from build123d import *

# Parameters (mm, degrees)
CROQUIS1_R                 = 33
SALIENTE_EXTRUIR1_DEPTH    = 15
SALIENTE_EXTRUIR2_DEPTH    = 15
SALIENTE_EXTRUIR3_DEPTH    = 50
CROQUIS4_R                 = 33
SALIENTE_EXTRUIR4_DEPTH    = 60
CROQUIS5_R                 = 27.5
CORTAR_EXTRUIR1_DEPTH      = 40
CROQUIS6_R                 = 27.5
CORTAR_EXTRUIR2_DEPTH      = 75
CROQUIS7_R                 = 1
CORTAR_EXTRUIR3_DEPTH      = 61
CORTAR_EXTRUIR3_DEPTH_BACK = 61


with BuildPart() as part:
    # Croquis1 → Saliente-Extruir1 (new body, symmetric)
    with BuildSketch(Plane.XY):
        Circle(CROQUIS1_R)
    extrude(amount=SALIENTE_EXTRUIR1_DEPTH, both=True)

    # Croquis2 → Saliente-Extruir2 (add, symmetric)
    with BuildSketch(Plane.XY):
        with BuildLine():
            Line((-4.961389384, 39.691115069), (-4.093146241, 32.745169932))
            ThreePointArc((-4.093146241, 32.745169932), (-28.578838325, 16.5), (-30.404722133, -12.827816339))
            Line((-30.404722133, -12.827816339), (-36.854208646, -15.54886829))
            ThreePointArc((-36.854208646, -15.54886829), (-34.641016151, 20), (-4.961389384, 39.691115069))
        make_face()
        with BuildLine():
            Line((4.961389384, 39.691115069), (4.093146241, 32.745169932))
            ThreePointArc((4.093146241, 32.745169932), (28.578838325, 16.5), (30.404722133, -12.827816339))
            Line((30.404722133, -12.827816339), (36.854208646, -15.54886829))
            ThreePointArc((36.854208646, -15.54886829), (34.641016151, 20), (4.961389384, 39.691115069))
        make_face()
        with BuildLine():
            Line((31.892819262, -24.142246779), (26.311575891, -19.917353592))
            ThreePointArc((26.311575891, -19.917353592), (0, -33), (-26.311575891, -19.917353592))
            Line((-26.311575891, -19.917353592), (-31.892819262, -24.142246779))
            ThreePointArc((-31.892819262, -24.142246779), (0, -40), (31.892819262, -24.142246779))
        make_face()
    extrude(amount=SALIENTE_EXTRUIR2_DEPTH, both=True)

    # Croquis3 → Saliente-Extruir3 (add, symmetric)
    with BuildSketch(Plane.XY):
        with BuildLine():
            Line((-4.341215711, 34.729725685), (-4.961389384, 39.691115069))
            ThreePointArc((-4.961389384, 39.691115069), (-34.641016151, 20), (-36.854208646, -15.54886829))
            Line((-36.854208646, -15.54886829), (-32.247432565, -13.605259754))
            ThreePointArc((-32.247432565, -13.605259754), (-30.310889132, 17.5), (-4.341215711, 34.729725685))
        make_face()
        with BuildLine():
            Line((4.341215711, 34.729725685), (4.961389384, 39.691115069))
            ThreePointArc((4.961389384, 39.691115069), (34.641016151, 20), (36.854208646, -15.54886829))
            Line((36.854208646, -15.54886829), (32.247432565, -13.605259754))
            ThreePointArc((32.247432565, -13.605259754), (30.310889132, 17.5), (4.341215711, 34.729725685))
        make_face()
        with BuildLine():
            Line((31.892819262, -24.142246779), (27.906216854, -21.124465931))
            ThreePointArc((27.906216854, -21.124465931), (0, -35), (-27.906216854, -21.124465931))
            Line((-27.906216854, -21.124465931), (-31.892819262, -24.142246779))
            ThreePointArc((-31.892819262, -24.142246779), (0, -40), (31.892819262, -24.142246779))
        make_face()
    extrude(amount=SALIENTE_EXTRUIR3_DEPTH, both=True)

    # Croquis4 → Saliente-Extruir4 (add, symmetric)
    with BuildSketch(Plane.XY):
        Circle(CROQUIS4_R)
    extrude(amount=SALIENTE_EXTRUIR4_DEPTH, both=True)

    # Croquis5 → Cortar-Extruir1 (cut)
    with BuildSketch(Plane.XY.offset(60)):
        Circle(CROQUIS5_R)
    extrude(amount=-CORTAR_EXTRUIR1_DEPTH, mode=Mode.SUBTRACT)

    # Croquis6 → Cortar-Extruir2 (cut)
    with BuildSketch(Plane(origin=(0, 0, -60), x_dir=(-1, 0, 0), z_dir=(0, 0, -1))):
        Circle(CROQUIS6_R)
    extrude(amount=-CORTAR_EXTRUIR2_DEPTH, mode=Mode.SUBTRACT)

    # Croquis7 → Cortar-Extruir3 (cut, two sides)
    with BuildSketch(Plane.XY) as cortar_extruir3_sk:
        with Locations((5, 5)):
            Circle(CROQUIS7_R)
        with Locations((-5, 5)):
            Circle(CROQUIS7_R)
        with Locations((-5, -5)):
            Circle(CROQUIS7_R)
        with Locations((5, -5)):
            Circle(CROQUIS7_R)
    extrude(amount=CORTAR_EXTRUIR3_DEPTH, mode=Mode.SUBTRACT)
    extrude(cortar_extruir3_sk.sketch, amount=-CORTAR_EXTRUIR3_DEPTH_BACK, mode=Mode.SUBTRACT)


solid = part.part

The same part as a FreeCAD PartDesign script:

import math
import FreeCAD as App
import Part
import Sketcher
from FreeCAD import Vector

doc = App.newDocument("Part")
params = doc.addObject("Spreadsheet::Sheet", "Params")
for row, (alias, value) in enumerate([
    ("sketch1_diameter", "66 mm"),
    ("pad1_length", "30 mm"),
    ("sketch2_radius", "40 mm"),
    ("sketch2_radius2", "33 mm"),
    ("pad2_length", "30 mm"),
    ("sketch3_radius", "40 mm"),
    ("sketch3_radius2", "35 mm"),
    ("pad3_length", "100 mm"),
    ("sketch4_diameter", "66 mm"),
    ("pad4_length", "120 mm"),
    ("sketch5_diameter", "55 mm"),
    ("pocket1_length", "40 mm"),
    ("sketch6_diameter", "55 mm"),
    ("pocket2_length", "75 mm"),
    ("sketch7_diameter", "2 mm"),
], start=1):
    params.set(f"A{row}", alias)
    params.set(f"B{row}", "=" + value)
    params.setAlias(f"B{row}", alias)

body = doc.addObject("PartDesign::Body", "Body")

# Sketch on XY plane
sketch1 = body.newObject("Sketcher::SketchObject", "Sketch")
sketch1.AttachmentSupport = (doc.getObject("XY_Plane"), [""])
sketch1.MapMode = "FlatFace"
sketch1.addGeometry(Part.Circle(Vector(0, 0, 0), Vector(0, 0, 1), 33), False)
sketch1.addConstraint(Sketcher.Constraint("Coincident", 0, 3, -1, 1))
sketch1.addConstraint(Sketcher.Constraint("Diameter", 0, 66.0))
sketch1.setExpression("Constraints[1]", "Params.sketch1_diameter")
pad1 = body.newObject("PartDesign::Pad", "Pad")
pad1.Profile = sketch1
pad1.setExpression("Length", "Params.pad1_length")
pad1.Midplane = True

# Sketch on XY plane
sketch2 = body.newObject("Sketcher::SketchObject", "Sketch001")
sketch2.AttachmentSupport = (doc.getObject("XY_Plane"), [""])
sketch2.MapMode = "FlatFace"
sketch2.addGeometry(Part.LineSegment(Vector(-4, 33, 0), Vector(-5, 40, 0)), False)
sketch2.addGeometry(Part.ArcOfCircle(Part.Circle(Vector(0, 0, 0), Vector(0, 0, 1), 40), math.radians(97), math.radians(203)), False)
sketch2.addGeometry(Part.LineSegment(Vector(-37, -16, 0), Vector(-30, -13, 0)), False)
sketch2.addGeometry(Part.ArcOfCircle(Part.Circle(Vector(0, 0, 0), Vector(0, 0, 1), 33), math.radians(97), math.radians(203)), False)
sketch2.addGeometry(Part.LineSegment(Vector(5, 40, 0), Vector(4, 33, 0)), False)
sketch2.addGeometry(Part.ArcOfCircle(Part.Circle(Vector(0, 0, 0), Vector(0, 0, 1), 33), math.radians(-23), math.radians(83)), False)
sketch2.addGeometry(Part.LineSegment(Vector(30, -13, 0), Vector(37, -16, 0)), False)
sketch2.addGeometry(Part.ArcOfCircle(Part.Circle(Vector(0, 0, 0), Vector(0, 0, 1), 40), math.radians(-23), math.radians(83)), False)
sketch2.addGeometry(Part.LineSegment(Vector(32, -24, 0), Vector(26, -20, 0)), False)
sketch2.addGeometry(Part.ArcOfCircle(Part.Circle(Vector(0, 0, 0), Vector(0, 0, 1), 33), math.radians(-143), math.radians(-37)), False)
sketch2.addGeometry(Part.LineSegment(Vector(-26, -20, 0), Vector(-32, -24, 0)), False)
sketch2.addGeometry(Part.ArcOfCircle(Part.Circle(Vector(0, 0, 0), Vector(0, 0, 1), 40), math.radians(-143), math.radians(-37)), False)
sketch2.addConstraint(Sketcher.Constraint("Coincident", 0, 2, 1, 1))
sketch2.addConstraint(Sketcher.Constraint("Coincident", 1, 2, 2, 1))
sketch2.addConstraint(Sketcher.Constraint("Coincident", 2, 2, 3, 2))
sketch2.addConstraint(Sketcher.Constraint("Coincident", 3, 1, 0, 1))
sketch2.addConstraint(Sketcher.Constraint("Coincident", 4, 2, 5, 2))
sketch2.addConstraint(Sketcher.Constraint("Coincident", 5, 1, 6, 1))
sketch2.addConstraint(Sketcher.Constraint("Coincident", 6, 2, 7, 1))
sketch2.addConstraint(Sketcher.Constraint("Coincident", 7, 2, 4, 1))
sketch2.addConstraint(Sketcher.Constraint("Coincident", 8, 2, 9, 2))
sketch2.addConstraint(Sketcher.Constraint("Coincident", 9, 1, 10, 1))
sketch2.addConstraint(Sketcher.Constraint("Coincident", 10, 2, 11, 1))
sketch2.addConstraint(Sketcher.Constraint("Coincident", 11, 2, 8, 1))
sketch2.addConstraint(Sketcher.Constraint("Coincident", 1, 3, -1, 1))
sketch2.addConstraint(Sketcher.Constraint("Coincident", 3, 3, -1, 1))
sketch2.addConstraint(Sketcher.Constraint("Coincident", 5, 3, -1, 1))
sketch2.addConstraint(Sketcher.Constraint("Coincident", 7, 3, -1, 1))
sketch2.addConstraint(Sketcher.Constraint("Coincident", 9, 3, -1, 1))
sketch2.addConstraint(Sketcher.Constraint("Coincident", 11, 3, -1, 1))
sketch2.addConstraint(Sketcher.Constraint("Equal", 3, 5))
sketch2.addConstraint(Sketcher.Constraint("Equal", 1, 7))
sketch2.addConstraint(Sketcher.Constraint("Equal", 5, 9))
sketch2.addConstraint(Sketcher.Constraint("Equal", 7, 11))
sketch2.addConstraint(Sketcher.Constraint("Horizontal", 3, 1, 4, 2))
sketch2.addConstraint(Sketcher.Constraint("Horizontal", 2, 2, 5, 1))
sketch2.addConstraint(Sketcher.Constraint("Horizontal", 1, 2, 6, 2))
sketch2.addConstraint(Sketcher.Constraint("Horizontal", 0, 2, 7, 2))
sketch2.addConstraint(Sketcher.Constraint("Horizontal", 8, 2, 9, 1))
sketch2.addConstraint(Sketcher.Constraint("Horizontal", 10, 2, 11, 2))
sketch2.addConstraint(Sketcher.Constraint("Radius", 1, 40.0))
sketch2.addConstraint(Sketcher.Constraint("Radius", 3, 33.0))
sketch2.addConstraint(Sketcher.Constraint("DistanceX", 0, 2, -1, 1, 4.961389))
sketch2.addConstraint(Sketcher.Constraint("DistanceX", 1, 2, -1, 1, 36.854209))
sketch2.addConstraint(Sketcher.Constraint("DistanceY", -1, 1, 3, 1, 32.74517))
sketch2.addConstraint(Sketcher.Constraint("DistanceX", 10, 2, -1, 1, 31.892819))
sketch2.addConstraint(Sketcher.Constraint("DistanceY", 1, 2, 2, 2, 2.721052))
sketch2.addConstraint(Sketcher.Constraint("DistanceX", -1, 1, 8, 2, 26.311576))
sketch2.setExpression("Constraints[28]", "Params.sketch2_radius")
sketch2.setExpression("Constraints[29]", "Params.sketch2_radius2")
pad2 = body.newObject("PartDesign::Pad", "Pad001")
pad2.Profile = sketch2
pad2.setExpression("Length", "Params.pad2_length")
pad2.Midplane = True

# Sketch on XY plane
sketch3 = body.newObject("Sketcher::SketchObject", "Sketch002")
sketch3.AttachmentSupport = (doc.getObject("XY_Plane"), [""])
sketch3.MapMode = "FlatFace"
sketch3.addGeometry(Part.LineSegment(Vector(-4, 35, 0), Vector(-5, 40, 0)), False)
sketch3.addGeometry(Part.ArcOfCircle(Part.Circle(Vector(0, 0, 0), Vector(0, 0, 1), 40), math.radians(97), math.radians(203)), False)
sketch3.addGeometry(Part.LineSegment(Vector(-37, -16, 0), Vector(-32, -14, 0)), False)
sketch3.addGeometry(Part.ArcOfCircle(Part.Circle(Vector(0, 0, 0), Vector(0, 0, 1), 35), math.radians(97), math.radians(203)), False)
sketch3.addGeometry(Part.LineSegment(Vector(5, 40, 0), Vector(4, 35, 0)), False)
sketch3.addGeometry(Part.ArcOfCircle(Part.Circle(Vector(0, 0, 0), Vector(0, 0, 1), 35), math.radians(-23), math.radians(83)), False)
sketch3.addGeometry(Part.LineSegment(Vector(32, -14, 0), Vector(37, -16, 0)), False)
sketch3.addGeometry(Part.ArcOfCircle(Part.Circle(Vector(0, 0, 0), Vector(0, 0, 1), 40), math.radians(-23), math.radians(83)), False)
sketch3.addGeometry(Part.LineSegment(Vector(32, -24, 0), Vector(28, -21, 0)), False)
sketch3.addGeometry(Part.ArcOfCircle(Part.Circle(Vector(0, 0, 0), Vector(0, 0, 1), 35), math.radians(-143), math.radians(-37)), False)
sketch3.addGeometry(Part.LineSegment(Vector(-28, -21, 0), Vector(-32, -24, 0)), False)
sketch3.addGeometry(Part.ArcOfCircle(Part.Circle(Vector(0, 0, 0), Vector(0, 0, 1), 40), math.radians(-143), math.radians(-37)), False)
sketch3.addConstraint(Sketcher.Constraint("Coincident", 0, 2, 1, 1))
sketch3.addConstraint(Sketcher.Constraint("Coincident", 1, 2, 2, 1))
sketch3.addConstraint(Sketcher.Constraint("Coincident", 2, 2, 3, 2))
sketch3.addConstraint(Sketcher.Constraint("Coincident", 3, 1, 0, 1))
sketch3.addConstraint(Sketcher.Constraint("Coincident", 4, 2, 5, 2))
sketch3.addConstraint(Sketcher.Constraint("Coincident", 5, 1, 6, 1))
sketch3.addConstraint(Sketcher.Constraint("Coincident", 6, 2, 7, 1))
sketch3.addConstraint(Sketcher.Constraint("Coincident", 7, 2, 4, 1))
sketch3.addConstraint(Sketcher.Constraint("Coincident", 8, 2, 9, 2))
sketch3.addConstraint(Sketcher.Constraint("Coincident", 9, 1, 10, 1))
sketch3.addConstraint(Sketcher.Constraint("Coincident", 10, 2, 11, 1))
sketch3.addConstraint(Sketcher.Constraint("Coincident", 11, 2, 8, 1))
sketch3.addConstraint(Sketcher.Constraint("Coincident", 1, 3, -1, 1))
sketch3.addConstraint(Sketcher.Constraint("Coincident", 3, 3, -1, 1))
sketch3.addConstraint(Sketcher.Constraint("Coincident", 5, 3, -1, 1))
sketch3.addConstraint(Sketcher.Constraint("Coincident", 7, 3, -1, 1))
sketch3.addConstraint(Sketcher.Constraint("Coincident", 9, 3, -1, 1))
sketch3.addConstraint(Sketcher.Constraint("Coincident", 11, 3, -1, 1))
sketch3.addConstraint(Sketcher.Constraint("Equal", 3, 5))
sketch3.addConstraint(Sketcher.Constraint("Equal", 1, 7))
sketch3.addConstraint(Sketcher.Constraint("Equal", 5, 9))
sketch3.addConstraint(Sketcher.Constraint("Equal", 7, 11))
sketch3.addConstraint(Sketcher.Constraint("Horizontal", 3, 1, 4, 2))
sketch3.addConstraint(Sketcher.Constraint("Horizontal", 2, 2, 5, 1))
sketch3.addConstraint(Sketcher.Constraint("Horizontal", 1, 2, 6, 2))
sketch3.addConstraint(Sketcher.Constraint("Horizontal", 0, 2, 7, 2))
sketch3.addConstraint(Sketcher.Constraint("Horizontal", 8, 2, 9, 1))
sketch3.addConstraint(Sketcher.Constraint("Horizontal", 10, 2, 11, 2))
sketch3.addConstraint(Sketcher.Constraint("Radius", 1, 40.0))
sketch3.addConstraint(Sketcher.Constraint("Radius", 3, 35.0))
sketch3.addConstraint(Sketcher.Constraint("DistanceX", 0, 2, -1, 1, 4.961389))
sketch3.addConstraint(Sketcher.Constraint("DistanceX", 1, 2, -1, 1, 36.854209))
sketch3.addConstraint(Sketcher.Constraint("DistanceY", 2, 2, -1, 1, 13.60526))
sketch3.addConstraint(Sketcher.Constraint("DistanceX", 10, 2, -1, 1, 31.892819))
sketch3.addConstraint(Sketcher.Constraint("DistanceY", 3, 1, 0, 2, 4.961389))
sketch3.addConstraint(Sketcher.Constraint("DistanceX", 8, 2, 6, 2, 8.947992))
sketch3.setExpression("Constraints[28]", "Params.sketch3_radius")
sketch3.setExpression("Constraints[29]", "Params.sketch3_radius2")
pad3 = body.newObject("PartDesign::Pad", "Pad002")
pad3.Profile = sketch3
pad3.setExpression("Length", "Params.pad3_length")
pad3.Midplane = True

# Sketch on XY plane
sketch4 = body.newObject("Sketcher::SketchObject", "Sketch003")
sketch4.AttachmentSupport = (doc.getObject("XY_Plane"), [""])
sketch4.MapMode = "FlatFace"
sketch4.addGeometry(Part.Circle(Vector(0, 0, 0), Vector(0, 0, 1), 33), False)
sketch4.addConstraint(Sketcher.Constraint("Coincident", 0, 3, -1, 1))
sketch4.addConstraint(Sketcher.Constraint("Diameter", 0, 66.0))
sketch4.setExpression("Constraints[1]", "Params.sketch4_diameter")
pad4 = body.newObject("PartDesign::Pad", "Pad003")
pad4.Profile = sketch4
pad4.setExpression("Length", "Params.pad4_length")
pad4.Midplane = True

# Sketch on XY plane
sketch5 = body.newObject("Sketcher::SketchObject", "Sketch004")
sketch5.AttachmentSupport = (doc.getObject("XY_Plane"), [""])
sketch5.MapMode = "FlatFace"
sketch5.AttachmentOffset = App.Placement(Vector(0, 0, 60), App.Rotation())
sketch5.addGeometry(Part.Circle(Vector(0, 0, 0), Vector(0, 0, 1), 28), False)
sketch5.addConstraint(Sketcher.Constraint("Coincident", 0, 3, -1, 1))
sketch5.addConstraint(Sketcher.Constraint("Diameter", 0, 55.0))
sketch5.setExpression("Constraints[1]", "Params.sketch5_diameter")
pocket1 = body.newObject("PartDesign::Pocket", "Pocket")
pocket1.Profile = sketch5
pocket1.setExpression("Length", "Params.pocket1_length")

# Sketch on XY plane
sketch6 = body.newObject("Sketcher::SketchObject", "Sketch005")
sketch6.AttachmentSupport = (doc.getObject("XY_Plane"), [""])
sketch6.MapMode = "FlatFace"
sketch6.AttachmentOffset = App.Placement(Vector(0, 0, -60), App.Rotation())
sketch6.addGeometry(Part.Circle(Vector(0, 0, 0), Vector(0, 0, 1), 28), False)
sketch6.addConstraint(Sketcher.Constraint("Coincident", 0, 3, -1, 1))
sketch6.addConstraint(Sketcher.Constraint("Diameter", 0, 55.0))
sketch6.setExpression("Constraints[1]", "Params.sketch6_diameter")
pocket2 = body.newObject("PartDesign::Pocket", "Pocket001")
pocket2.Profile = sketch6
pocket2.setExpression("Length", "Params.pocket2_length")
pocket2.Reversed = True

# Sketch on XY plane
sketch7 = body.newObject("Sketcher::SketchObject", "Sketch006")
sketch7.AttachmentSupport = (doc.getObject("XY_Plane"), [""])
sketch7.MapMode = "FlatFace"
sketch7.addGeometry(Part.Circle(Vector(5, 5, 0), Vector(0, 0, 1), 1), False)
sketch7.addGeometry(Part.Circle(Vector(-5, 5, 0), Vector(0, 0, 1), 1), False)
sketch7.addGeometry(Part.Circle(Vector(-5, -5, 0), Vector(0, 0, 1), 1), False)
sketch7.addGeometry(Part.Circle(Vector(5, -5, 0), Vector(0, 0, 1), 1), False)
sketch7.addConstraint(Sketcher.Constraint("Equal", 0, 1))
sketch7.addConstraint(Sketcher.Constraint("Equal", 1, 2))
sketch7.addConstraint(Sketcher.Constraint("Equal", 2, 3))
sketch7.addConstraint(Sketcher.Constraint("Symmetric", 0, 3, 2, 3, -1, 1))
sketch7.addConstraint(Sketcher.Constraint("Symmetric", 1, 3, 3, 3, -1, 1))
sketch7.addConstraint(Sketcher.Constraint("Symmetric", 0, 3, 1, 3, -2))
sketch7.addConstraint(Sketcher.Constraint("Diameter", 0, 2.0))
sketch7.addConstraint(Sketcher.Constraint("DistanceX", -1, 1, 0, 3, 5.0))
sketch7.addConstraint(Sketcher.Constraint("DistanceY", -1, 1, 0, 3, 5.0))
sketch7.setExpression("Constraints[6]", "Params.sketch7_diameter")
pocket3 = body.newObject("PartDesign::Pocket", "Pocket002")
pocket3.Profile = sketch7
pocket3.Type = "ThroughAll"
pocket3.Midplane = True

doc.recompute()
